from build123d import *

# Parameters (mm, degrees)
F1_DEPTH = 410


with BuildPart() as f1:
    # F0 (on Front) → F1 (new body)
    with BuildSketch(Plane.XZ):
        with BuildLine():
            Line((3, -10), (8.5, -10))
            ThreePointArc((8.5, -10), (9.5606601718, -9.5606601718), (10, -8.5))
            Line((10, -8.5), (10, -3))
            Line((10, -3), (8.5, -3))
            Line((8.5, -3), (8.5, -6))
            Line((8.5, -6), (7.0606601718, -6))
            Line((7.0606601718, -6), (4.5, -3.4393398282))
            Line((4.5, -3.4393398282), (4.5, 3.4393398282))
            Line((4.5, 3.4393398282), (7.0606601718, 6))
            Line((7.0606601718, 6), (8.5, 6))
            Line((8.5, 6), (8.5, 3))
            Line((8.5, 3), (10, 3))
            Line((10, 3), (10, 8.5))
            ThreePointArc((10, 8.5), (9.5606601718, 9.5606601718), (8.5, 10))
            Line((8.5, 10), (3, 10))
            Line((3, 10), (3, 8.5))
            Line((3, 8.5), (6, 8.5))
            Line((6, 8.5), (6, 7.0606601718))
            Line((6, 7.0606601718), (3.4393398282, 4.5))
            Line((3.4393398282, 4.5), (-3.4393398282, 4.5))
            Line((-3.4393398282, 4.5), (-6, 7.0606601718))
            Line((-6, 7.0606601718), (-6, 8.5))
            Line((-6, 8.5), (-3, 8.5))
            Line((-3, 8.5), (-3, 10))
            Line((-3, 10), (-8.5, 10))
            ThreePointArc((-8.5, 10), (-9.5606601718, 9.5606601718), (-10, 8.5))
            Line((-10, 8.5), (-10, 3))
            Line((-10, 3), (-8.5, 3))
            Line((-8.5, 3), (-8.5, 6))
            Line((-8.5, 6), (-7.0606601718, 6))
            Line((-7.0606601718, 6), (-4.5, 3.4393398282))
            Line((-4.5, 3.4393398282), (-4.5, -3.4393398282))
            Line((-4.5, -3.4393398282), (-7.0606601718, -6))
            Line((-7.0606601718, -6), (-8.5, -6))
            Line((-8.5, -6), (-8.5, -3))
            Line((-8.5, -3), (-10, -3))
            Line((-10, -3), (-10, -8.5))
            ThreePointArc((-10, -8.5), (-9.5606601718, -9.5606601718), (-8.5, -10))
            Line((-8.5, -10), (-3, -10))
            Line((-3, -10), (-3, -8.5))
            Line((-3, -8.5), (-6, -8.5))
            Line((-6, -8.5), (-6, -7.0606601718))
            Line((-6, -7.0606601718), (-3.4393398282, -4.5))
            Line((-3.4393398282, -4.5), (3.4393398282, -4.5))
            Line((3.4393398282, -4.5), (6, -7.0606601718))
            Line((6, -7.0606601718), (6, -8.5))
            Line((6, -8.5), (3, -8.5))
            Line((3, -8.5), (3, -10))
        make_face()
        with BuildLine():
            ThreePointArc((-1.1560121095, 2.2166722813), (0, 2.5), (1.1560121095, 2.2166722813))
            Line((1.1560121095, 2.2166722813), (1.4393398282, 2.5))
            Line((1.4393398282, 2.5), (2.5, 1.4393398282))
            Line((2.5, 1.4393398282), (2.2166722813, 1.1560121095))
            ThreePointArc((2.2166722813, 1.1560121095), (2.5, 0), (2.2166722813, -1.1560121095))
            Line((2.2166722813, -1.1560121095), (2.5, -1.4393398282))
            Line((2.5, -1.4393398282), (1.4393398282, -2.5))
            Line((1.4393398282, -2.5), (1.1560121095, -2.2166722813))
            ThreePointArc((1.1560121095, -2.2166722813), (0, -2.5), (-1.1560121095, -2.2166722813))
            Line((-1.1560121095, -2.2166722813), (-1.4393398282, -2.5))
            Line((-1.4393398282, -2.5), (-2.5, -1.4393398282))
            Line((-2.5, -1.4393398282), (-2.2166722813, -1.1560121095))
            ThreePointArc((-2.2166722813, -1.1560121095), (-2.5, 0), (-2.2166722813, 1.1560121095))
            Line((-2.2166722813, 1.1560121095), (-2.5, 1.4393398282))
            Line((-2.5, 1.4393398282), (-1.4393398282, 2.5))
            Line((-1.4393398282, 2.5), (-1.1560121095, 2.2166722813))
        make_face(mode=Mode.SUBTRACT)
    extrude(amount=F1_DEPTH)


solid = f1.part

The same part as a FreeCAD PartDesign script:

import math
import FreeCAD as App
import Part
import Sketcher

doc = App.newDocument("Part")
body = doc.addObject("PartDesign::Body", "Body")

# Sketch on XZ plane
sketch1 = body.newObject("Sketcher::SketchObject", "Sketch")
sketch1.AttachmentSupport = (doc.getObject("XZ_Plane"), [""])
sketch1.MapMode = "FlatFace"
sketch1.addGeometry(Part.LineSegment(App.Vector(3, -10, 0), App.Vector(8.5, -10, 0)), False)
sketch1.addGeometry(Part.ArcOfCircle(Part.Circle(App.Vector(8.5, -8.5, 0), App.Vector(0, 0, 1), 1.5), math.radians(-90), math.radians(0)), False)
sketch1.addGeometry(Part.LineSegment(App.Vector(10, -8.5, 0), App.Vector(10, -3, 0)), False)
sketch1.addGeometry(Part.LineSegment(App.Vector(10, -3, 0), App.Vector(8.5, -3, 0)), False)
sketch1.addGeometry(Part.LineSegment(App.Vector(8.5, -3, 0), App.Vector(8.5, -6, 0)), False)
sketch1.addGeometry(Part.LineSegment(App.Vector(8.5, -6, 0), App.Vector(7.06, -6, 0)), False)
sketch1.addGeometry(Part.LineSegment(App.Vector(7.06, -6, 0), App.Vector(4.5, -3.44, 0)), False)
sketch1.addGeometry(Part.LineSegment(App.Vector(4.5, -3.44, 0), App.Vector(4.5, 3.44, 0)), False)
sketch1.addGeometry(Part.LineSegment(App.Vector(4.5, 3.44, 0), App.Vector(7.06, 6, 0)), False)
sketch1.addGeometry(Part.LineSegment(App.Vector(7.06, 6, 0), App.Vector(8.5, 6, 0)), False)
sketch1.addGeometry(Part.LineSegment(App.Vector(8.5, 6, 0), App.Vector(8.5, 3, 0)), False)
sketch1.addGeometry(Part.LineSegment(App.Vector(8.5, 3, 0), App.Vector(10, 3, 0)), False)
sketch1.addGeometry(Part.LineSegment(App.Vector(10, 3, 0), App.Vector(10, 8.5, 0)), False)
sketch1.addGeometry(Part.ArcOfCircle(Part.Circle(App.Vector(8.5, 8.5, 0), App.Vector(0, 0, 1), 1.5), math.radians(0), math.radians(90)), False)
sketch1.addGeometry(Part.LineSegment(App.Vector(8.5, 10, 0), App.Vector(3, 10, 0)), False)
sketch1.addGeometry(Part.LineSegment(App.Vector(3, 10, 0), App.Vector(3, 8.5, 0)), False)
sketch1.addGeometry(Part.LineSegment(App.Vector(3, 8.5, 0), App.Vector(6, 8.5, 0)), False)
sketch1.addGeometry(Part.LineSegment(App.Vector(6, 8.5, 0), App.Vector(6, 7.06, 0)), False)
sketch1.addGeometry(Part.LineSegment(App.Vector(6, 7.06, 0), App.Vector(3.44, 4.5, 0)), False)
sketch1.addGeometry(Part.LineSegment(App.Vector(3.44, 4.5, 0), App.Vector(-3.44, 4.5, 0)), False)
sketch1.addGeometry(Part.LineSegment(App.Vector(-3.44, 4.5, 0), App.Vector(-6, 7.06, 0)), False)
sketch1.addGeometry(Part.LineSegment(App.Vector(-6, 7.06, 0), App.Vector(-6, 8.5, 0)), False)
sketch1.addGeometry(Part.LineSegment(App.Vector(-6, 8.5, 0), App.Vector(-3, 8.5, 0)), False)
sketch1.addGeometry(Part.LineSegment(App.Vector(-3, 8.5, 0), App.Vector(-3, 10, 0)), False)
sketch1.addGeometry(Part.LineSegment(App.Vector(-3, 10, 0), App.Vector(-8.5, 10, 0)), False)
sketch1.addGeometry(Part.ArcOfCircle(Part.Circle(App.Vector(-8.5, 8.5, 0), App.Vector(0, 0, 1), 1.5), math.radians(90), math.radians(180)), False)
sketch1.addGeometry(Part.LineSegment(App.Vector(-10, 8.5, 0), App.Vector(-10, 3, 0)), False)
sketch1.addGeometry(Part.LineSegment(App.Vector(-10, 3, 0), App.Vector(-8.5, 3, 0)), False)
sketch1.addGeometry(Part.LineSegment(App.Vector(-8.5, 3, 0), App.Vector(-8.5, 6, 0)), False)
sketch1.addGeometry(Part.LineSegment(App.Vector(-8.5, 6, 0), App.Vector(-7.06, 6, 0)), False)
sketch1.addGeometry(Part.LineSegment(App.Vector(-7.06, 6, 0), App.Vector(-4.5, 3.44, 0)), False)
sketch1.addGeometry(Part.LineSegment(App.Vector(-4.5, 3.44, 0), App.Vector(-4.5, -3.44, 0)), False)
sketch1.addGeometry(Part.LineSegment(App.Vector(-4.5, -3.44, 0), App.Vector(-7.06, -6, 0)), False)
sketch1.addGeometry(Part.LineSegment(App.Vector(-7.06, -6, 0), App.Vector(-8.5, -6, 0)), False)
sketch1.addGeometry(Part.LineSegment(App.Vector(-8.5, -6, 0), App.Vector(-8.5, -3, 0)), False)
sketch1.addGeometry(Part.LineSegment(App.Vector(-8.5, -3, 0), App.Vector(-10, -3, 0)), False)
sketch1.addGeometry(Part.LineSegment(App.Vector(-10, -3, 0), App.Vector(-10, -8.5, 0)), False)
sketch1.addGeometry(Part.ArcOfCircle(Part.Circle(App.Vector(-8.5, -8.5, 0), App.Vector(0, 0, 1), 1.5), math.radians(180), math.radians(270)), False)
sketch1.addGeometry(Part.LineSegment(App.Vector(-8.5, -10, 0), App.Vector(-3, -10, 0)), False)
sketch1.addGeometry(Part.LineSegment(App.Vector(-3, -10, 0), App.Vector(-3, -8.5, 0)), False)
sketch1.addGeometry(Part.LineSegment(App.Vector(-3, -8.5, 0), App.Vector(-6, -8.5, 0)), False)
sketch1.addGeometry(Part.LineSegment(App.Vector(-6, -8.5, 0), App.Vector(-6, -7.06, 0)), False)
sketch1.addGeometry(Part.LineSegment(App.Vector(-6, -7.06, 0), App.Vector(-3.44, -4.5, 0)), False)
sketch1.addGeometry(Part.LineSegment(App.Vector(-3.44, -4.5, 0), App.Vector(3.44, -4.5, 0)), False)
sketch1.addGeometry(Part.LineSegment(App.Vector(3.44, -4.5, 0), App.Vector(6, -7.06, 0)), False)
sketch1.addGeometry(Part.LineSegment(App.Vector(6, -7.06, 0), App.Vector(6, -8.5, 0)), False)
sketch1.addGeometry(Part.LineSegment(App.Vector(6, -8.5, 0), App.Vector(3, -8.5, 0)), False)
sketch1.addGeometry(Part.LineSegment(App.Vector(3, -8.5, 0), App.Vector(3, -10, 0)), False)
sketch1.addGeometry(Part.LineSegment(App.Vector(-1.44, 2.5, 0), App.Vector(-1.16, 2.22, 0)), False)
sketch1.addGeometry(Part.ArcOfCircle(Part.Circle(App.Vector(0, 0, 0), App.Vector(0, 0, 1), 2.5), math.radians(62), math.radians(118)), False)
sketch1.addGeometry(Part.LineSegment(App.Vector(1.16, 2.22, 0), App.Vector(1.44, 2.5, 0)), False)
sketch1.addGeometry(Part.LineSegment(App.Vector(1.44, 2.5, 0), App.Vector(2.5, 1.44, 0)), False)
sketch1.addGeometry(Part.LineSegment(App.Vector(2.5, 1.44, 0), App.Vector(2.22, 1.16, 0)), False)
sketch1.addGeometry(Part.ArcOfCircle(Part.Circle(App.Vector(0, 0, 0), App.Vector(0, 0, 1), 2.5), math.radians(-28), math.radians(28)), False)
sketch1.addGeometry(Part.LineSegment(App.Vector(2.22, -1.16, 0), App.Vector(2.5, -1.44, 0)), False)
sketch1.addGeometry(Part.LineSegment(App.Vector(2.5, -1.44, 0), App.Vector(1.44, -2.5, 0)), False)
sketch1.addGeometry(Part.LineSegment(App.Vector(1.44, -2.5, 0), App.Vector(1.16, -2.22, 0)), False)
sketch1.addGeometry(Part.ArcOfCircle(Part.Circle(App.Vector(0, 0, 0), App.Vector(0, 0, 1), 2.5), math.radians(-118), math.radians(-62)), False)
sketch1.addGeometry(Part.LineSegment(App.Vector(-1.16, -2.22, 0), App.Vector(-1.44, -2.5, 0)), False)
sketch1.addGeometry(Part.LineSegment(App.Vector(-1.44, -2.5, 0), App.Vector(-2.5, -1.44, 0)), False)
sketch1.addGeometry(Part.LineSegment(App.Vector(-2.5, -1.44, 0), App.Vector(-2.22, -1.16, 0)), False)
sketch1.addGeometry(Part.ArcOfCircle(Part.Circle(App.Vector(0, 0, 0), App.Vector(0, 0, 1), 2.5), math.radians(152), math.radians(208)), False)
sketch1.addGeometry(Part.LineSegment(App.Vector(-2.22, 1.16, 0), App.Vector(-2.5, 1.44, 0)), False)
sketch1.addGeometry(Part.LineSegment(App.Vector(-2.5, 1.44, 0), App.Vector(-1.44, 2.5, 0)), False)
sketch1.addConstraint(Sketcher.Constraint("Tangent", 0, 2, 1, 1))
sketch1.addConstraint(Sketcher.Constraint("Tangent", 1, 2, 2, 1))
sketch1.addConstraint(Sketcher.Constraint("Coincident", 2, 2, 3, 1))
sketch1.addConstraint(Sketcher.Constraint("Coincident", 3, 2, 4, 1))
sketch1.addConstraint(Sketcher.Constraint("Coincident", 4, 2, 5, 1))
sketch1.addConstraint(Sketcher.Constraint("Coincident", 5, 2, 6, 1))
sketch1.addConstraint(Sketcher.Constraint("Coincident", 6, 2, 7, 1))
sketch1.addConstraint(Sketcher.Constraint("Coincident", 7, 2, 8, 1))
sketch1.addConstraint(Sketcher.Constraint("Coincident", 8, 2, 9, 1))
sketch1.addConstraint(Sketcher.Constraint("Coincident", 9, 2, 10, 1))
sketch1.addConstraint(Sketcher.Constraint("Coincident", 10, 2, 11, 1))
sketch1.addConstraint(Sketcher.Constraint("Coincident", 11, 2, 12, 1))
sketch1.addConstraint(Sketcher.Constraint("Tangent", 12, 2, 13, 1))
sketch1.addConstraint(Sketcher.Constraint("Tangent", 13, 2, 14, 1))
sketch1.addConstraint(Sketcher.Constraint("Coincident", 14, 2, 15, 1))
sketch1.addConstraint(Sketcher.Constraint("Coincident", 15, 2, 16, 1))
sketch1.addConstraint(Sketcher.Constraint("Coincident", 16, 2, 17, 1))
sketch1.addConstraint(Sketcher.Constraint("Coincident", 17, 2, 18, 1))
sketch1.addConstraint(Sketcher.Constraint("Coincident", 18, 2, 19, 1))
sketch1.addConstraint(Sketcher.Constraint("Coincident", 19, 2, 20, 1))
sketch1.addConstraint(Sketcher.Constraint("Coincident", 20, 2, 21, 1))
sketch1.addConstraint(Sketcher.Constraint("Coincident", 21, 2, 22, 1))
sketch1.addConstraint(Sketcher.Constraint("Coincident", 22, 2, 23, 1))
sketch1.addConstraint(Sketcher.Constraint("Coincident", 23, 2, 24, 1))
sketch1.addConstraint(Sketcher.Constraint("Tangent", 24, 2, 25, 1))
sketch1.addConstraint(Sketcher.Constraint("Tangent", 25, 2, 26, 1))
sketch1.addConstraint(Sketcher.Constraint("Coincident", 26, 2, 27, 1))
sketch1.addConstraint(Sketcher.Constraint("Coincident", 27, 2, 28, 1))
sketch1.addConstraint(Sketcher.Constraint("Coincident", 28, 2, 29, 1))
sketch1.addConstraint(Sketcher.Constraint("Coincident", 29, 2, 30, 1))
sketch1.addConstraint(Sketcher.Constraint("Coincident", 30, 2, 31, 1))
sketch1.addConstraint(Sketcher.Constraint("Coincident", 31, 2, 32, 1))
sketch1.addConstraint(Sketcher.Constraint("Coincident", 32, 2, 33, 1))
sketch1.addConstraint(Sketcher.Constraint("Coincident", 33, 2, 34, 1))
sketch1.addConstraint(Sketcher.Constraint("Coincident", 34, 2, 35, 1))
sketch1.addConstraint(Sketcher.Constraint("Coincident", 35, 2, 36, 1))
sketch1.addConstraint(Sketcher.Constraint("Tangent", 36, 2, 37, 1))
sketch1.addConstraint(Sketcher.Constraint("Tangent", 37, 2, 38, 1))
sketch1.addConstraint(Sketcher.Constraint("Coincident", 38, 2, 39, 1))
sketch1.addConstraint(Sketcher.Constraint("Coincident", 39, 2, 40, 1))
sketch1.addConstraint(Sketcher.Constraint("Coincident", 40, 2, 41, 1))
sketch1.addConstraint(Sketcher.Constraint("Coincident", 41, 2, 42, 1))
sketch1.addConstraint(Sketcher.Constraint("Coincident", 42, 2, 43, 1))
sketch1.addConstraint(Sketcher.Constraint("Coincident", 43, 2, 44, 1))
sketch1.addConstraint(Sketcher.Constraint("Coincident", 44, 2, 45, 1))
sketch1.addConstraint(Sketcher.Constraint("Coincident", 45, 2, 46, 1))
sketch1.addConstraint(Sketcher.Constraint("Coincident", 46, 2, 47, 1))
sketch1.addConstraint(Sketcher.Constraint("Coincident", 47, 2, 0, 1))
sketch1.addConstraint(Sketcher.Constraint("Coincident", 48, 2, 49, 2))
sketch1.addConstraint(Sketcher.Constraint("Coincident", 49, 1, 50, 1))
sketch1.addConstraint(Sketcher.Constraint("Coincident", 50, 2, 51, 1))
sketch1.addConstraint(Sketcher.Constraint("Coincident", 51, 2, 52, 1))
sketch1.addConstraint(Sketcher.Constraint("Coincident", 52, 2, 53, 2))
sketch1.addConstraint(Sketcher.Constraint("Coincident", 53, 1, 54, 1))
sketch1.addConstraint(Sketcher.Constraint("Coincident", 54, 2, 55, 1))
sketch1.addConstraint(Sketcher.Constraint("Coincident", 55, 2, 56, 1))
sketch1.addConstraint(Sketcher.Constraint("Coincident", 56, 2, 57, 2))
sketch1.addConstraint(Sketcher.Constraint("Coincident", 57, 1, 58, 1))
sketch1.addConstraint(Sketcher.Constraint("Coincident", 58, 2, 59, 1))
sketch1.addConstraint(Sketcher.Constraint("Coincident", 59, 2, 60, 1))
sketch1.addConstraint(Sketcher.Constraint("Coincident", 60, 2, 61, 2))
sketch1.addConstraint(Sketcher.Constraint("Coincident", 61, 1, 62, 1))
sketch1.addConstraint(Sketcher.Constraint("Coincident", 62, 2, 63, 1))
sketch1.addConstraint(Sketcher.Constraint("Coincident", 63, 2, 48, 1))
sketch1.addConstraint(Sketcher.Constraint("Horizontal", 0))
sketch1.addConstraint(Sketcher.Constraint("Vertical", 2))
sketch1.addConstraint(Sketcher.Constraint("Horizontal", 3))
sketch1.addConstraint(Sketcher.Constraint("Vertical", 4))
sketch1.addConstraint(Sketcher.Constraint("Horizontal", 5))
sketch1.addConstraint(Sketcher.Constraint("Vertical", 7))
sketch1.addConstraint(Sketcher.Constraint("Horizontal", 9))
sketch1.addConstraint(Sketcher.Constraint("Vertical", 10))
sketch1.addConstraint(Sketcher.Constraint("Horizontal", 11))
sketch1.addConstraint(Sketcher.Constraint("Vertical", 12))
sketch1.addConstraint(Sketcher.Constraint("Horizontal", 14))
sketch1.addConstraint(Sketcher.Constraint("Vertical", 15))
sketch1.addConstraint(Sketcher.Constraint("Horizontal", 16))
sketch1.addConstraint(Sketcher.Constraint("Vertical", 17))
sketch1.addConstraint(Sketcher.Constraint("Horizontal", 19))
sketch1.addConstraint(Sketcher.Constraint("Vertical", 21))
sketch1.addConstraint(Sketcher.Constraint("Horizontal", 22))
sketch1.addConstraint(Sketcher.Constraint("Vertical", 23))
sketch1.addConstraint(Sketcher.Constraint("Horizontal", 24))
sketch1.addConstraint(Sketcher.Constraint("Vertical", 26))
sketch1.addConstraint(Sketcher.Constraint("Horizontal", 27))
sketch1.addConstraint(Sketcher.Constraint("Vertical", 28))
sketch1.addConstraint(Sketcher.Constraint("Horizontal", 29))
sketch1.addConstraint(Sketcher.Constraint("Vertical", 31))
sketch1.addConstraint(Sketcher.Constraint("Horizontal", 33))
sketch1.addConstraint(Sketcher.Constraint("Vertical", 34))
sketch1.addConstraint(Sketcher.Constraint("Horizontal", 35))
sketch1.addConstraint(Sketcher.Constraint("Vertical", 36))
sketch1.addConstraint(Sketcher.Constraint("Horizontal", 38))
sketch1.addConstraint(Sketcher.Constraint("Vertical", 39))
sketch1.addConstraint(Sketcher.Constraint("Horizontal", 40))
sketch1.addConstraint(Sketcher.Constraint("Vertical", 41))
sketch1.addConstraint(Sketcher.Constraint("Horizontal", 43))
sketch1.addConstraint(Sketcher.Constraint("Vertical", 45))
sketch1.addConstraint(Sketcher.Constraint("Horizontal", 46))
sketch1.addConstraint(Sketcher.Constraint("Vertical", 47))
sketch1.addConstraint(Sketcher.Constraint("Coincident", 49, 3, -1, 1))
sketch1.addConstraint(Sketcher.Constraint("Coincident", 53, 3, -1, 1))
sketch1.addConstraint(Sketcher.Constraint("Coincident", 57, 3, -1, 1))
sketch1.addConstraint(Sketcher.Constraint("Coincident", 61, 3, -1, 1))
sketch1.addConstraint(Sketcher.Constraint("Equal", 1, 13))
sketch1.addConstraint(Sketcher.Constraint("Equal", 13, 25))
sketch1.addConstraint(Sketcher.Constraint("Equal", 25, 37))
sketch1.addConstraint(Sketcher.Constraint("Equal", 49, 53))
sketch1.addConstraint(Sketcher.Constraint("Equal", 53, 57))
sketch1.addConstraint(Sketcher.Constraint("Equal", 57, 61))
sketch1.addConstraint(Sketcher.Constraint("Symmetric", 1, 3, 25, 3, -1, 1))
sketch1.addConstraint(Sketcher.Constraint("Symmetric", 13, 3, 37, 3, -1, 1))
sketch1.addConstraint(Sketcher.Constraint("Symmetric", 3, 2, 27, 2, -1, 1))
sketch1.addConstraint(Sketcher.Constraint("Symmetric", 5, 2, 29, 2, -1, 1))
sketch1.addConstraint(Sketcher.Constraint("Symmetric", 6, 2, 30, 2, -1, 1))
sketch1.addConstraint(Sketcher.Constraint("Symmetric", 8, 2, 32, 2, -1, 1))
sketch1.addConstraint(Sketcher.Constraint("Symmetric", 10, 2, 34, 2, -1, 1))
sketch1.addConstraint(Sketcher.Constraint("Symmetric", 15, 2, 39, 2, -1, 1))
sketch1.addConstraint(Sketcher.Constraint("Symmetric", 17, 2, 41, 2, -1, 1))
sketch1.addConstraint(Sketcher.Constraint("Symmetric", 18, 2, 42, 2, -1, 1))
sketch1.addConstraint(Sketcher.Constraint("Symmetric", 20, 2, 44, 2, -1, 1))
sketch1.addConstraint(Sketcher.Constraint("Symmetric", 22, 2, 46, 2, -1, 1))
sketch1.addConstraint(Sketcher.Constraint("Symmetric", 50, 2, 58, 2, -1, 1))
sketch1.addConstraint(Sketcher.Constraint("Symmetric", 51, 2, 59, 2, -1, 1))
sketch1.addConstraint(Sketcher.Constraint("Symmetric", 54, 2, 62, 2, -1, 1))
sketch1.addConstraint(Sketcher.Constraint("Symmetric", 55, 2, 63, 2, -1, 1))
sketch1.addConstraint(Sketcher.Constraint("Symmetric", 13, 3, 25, 3, -2))
sketch1.addConstraint(Sketcher.Constraint("Symmetric", 17, 2, 20, 2, -2))
sketch1.addConstraint(Sketcher.Constraint("Symmetric", 15, 2, 22, 2, -2))
sketch1.addConstraint(Sketcher.Constraint("Symmetric", 10, 2, 27, 2, -2))
sketch1.addConstraint(Sketcher.Constraint("Symmetric", 8, 2, 29, 2, -2))
sketch1.addConstraint(Sketcher.Constraint("Symmetric", 55, 2, 58, 2, -2))
sketch1.addConstraint(Sketcher.Constraint("Symmetric", 54, 2, 59, 2, -2))
sketch1.addConstraint(Sketcher.Constraint("Perpendicular", 6, 8))
sketch1.addConstraint(Sketcher.Constraint("Parallel", 8, 18))
sketch1.addConstraint(Sketcher.Constraint("Perpendicular", 18, 20))
sketch1.addConstraint(Sketcher.Constraint("Perpendicular", 30, 32))
sketch1.addConstraint(Sketcher.Constraint("Perpendicular", 42, 44))
sketch1.addConstraint(Sketcher.Constraint("Parallel", 44, 48))
sketch1.addConstraint(Sketcher.Constraint("Perpendicular", 48, 50))
sketch1.addConstraint(Sketcher.Constraint("Perpendicular", 50, 51))
sketch1.addConstraint(Sketcher.Constraint("Perpendicular", 51, 52))
sketch1.addConstraint(Sketcher.Constraint("Perpendicular", 52, 54))
sketch1.addConstraint(Sketcher.Constraint("Perpendicular", 54, 55))
sketch1.addConstraint(Sketcher.Constraint("Perpendicular", 55, 56))
sketch1.addConstraint(Sketcher.Constraint("Perpendicular", 56, 58))
sketch1.addConstraint(Sketcher.Constraint("Perpendicular", 59, 60))
sketch1.addConstraint(Sketcher.Constraint("Perpendicular", 60, 62))
sketch1.addConstraint(Sketcher.Constraint("Horizontal", 12, 2, 15, 2))
sketch1.addConstraint(Sketcher.Constraint("Vertical", 0, 2, 3, 2))
sketch1.addConstraint(Sketcher.Constraint("Equal", 38, 2))
sketch1.addConstraint(Sketcher.Constraint("Equal", 46, 4))
sketch1.addConstraint(Sketcher.Constraint("Equal", 43, 7))
sketch1.addConstraint(Sketcher.Constraint("Equal", 33, 17))
sketch1.addConstraint(Sketcher.Constraint("Equal", 8, 18))
sketch1.addConstraint(Sketcher.Constraint("Equal", 50, 52))
sketch1.addConstraint(Sketcher.Constraint("Radius", 1, 1.5))
sketch1.addConstraint(Sketcher.Constraint("Radius", 49, 2.5))
sketch1.addConstraint(Sketcher.Constraint("DistanceX", 16, 1, 16, 2, 3.0))
sketch1.addConstraint(Sketcher.Constraint("DistanceX", 0, 1, 0, 2, 5.5))
sketch1.addConstraint(Sketcher.Constraint("DistanceY", 0, 2, -1, 1, 10.0))
sketch1.addConstraint(Sketcher.Constraint("Distance", 51, 1.5))
sketch1.addConstraint(Sketcher.Constraint("DistanceX", -1, 1, 6, 2, 4.5))
sketch1.addConstraint(Sketcher.Constraint("DistanceY", -1, 1, 50, 2, 2.5))
sketch1.addConstraint(Sketcher.Constraint("DistanceX", 5, 2, 5, 1, 1.43934))
pad1 = body.newObject("PartDesign::Pad", "Pad")
pad1.Profile = sketch1
pad1.Length = 410

doc.recompute()
